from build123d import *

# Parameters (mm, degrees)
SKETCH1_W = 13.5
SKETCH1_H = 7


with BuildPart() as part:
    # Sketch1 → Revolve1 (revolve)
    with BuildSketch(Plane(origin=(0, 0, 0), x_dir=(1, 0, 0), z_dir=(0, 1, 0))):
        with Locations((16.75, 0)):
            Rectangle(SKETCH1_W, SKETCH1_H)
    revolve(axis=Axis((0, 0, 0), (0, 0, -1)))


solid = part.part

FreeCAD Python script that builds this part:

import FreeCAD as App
import Part
import Sketcher
from FreeCAD import Vector


def add_polygon(sketch, points):
    """Adds a closed chain of lines whose ends are joined by coincident constraints."""
    first, n = sketch.GeometryCount, len(points)
    for a, b in zip(points, points[1:] + points[:1]):
        sketch.addGeometry(Part.LineSegment(App.Vector(*a, 0), App.Vector(*b, 0)), False)
    for i in range(n):
        sketch.addConstraint(Sketcher.Constraint("Coincident", first + i, 2, first + (i + 1) % n, 1))

doc = App.newDocument("Part")
params = doc.addObject("Spreadsheet::Sheet", "Params")
for row, (alias, value) in enumerate([
    ("sketch1_height", "7 mm"),
    ("sketch1_width", "13.5 mm"),
    ("revolution_angle", "360 deg"),
], start=1):
    params.set(f"A{row}", alias)
    params.set(f"B{row}", "=" + value)
    params.setAlias(f"B{row}", alias)

body = doc.addObject("PartDesign::Body", "Body")

sketch1 = body.newObject("Sketcher::SketchObject", "Sketch")
sketch1.AttachmentSupport = (doc.getObject("XZ_Plane"), [""])
sketch1.MapMode = "FlatFace"
add_polygon(sketch1, [(10, -4), (10, 4), (24, 4), (24, -4)])
sketch1.addConstraint(Sketcher.Constraint("Vertical", 0))
sketch1.addConstraint(Sketcher.Constraint("Horizontal", 1))
sketch1.addConstraint(Sketcher.Constraint("Vertical", 2))
sketch1.addConstraint(Sketcher.Constraint("Horizontal", 3))
sketch1.addConstraint(Sketcher.Constraint("DistanceY", 0, 1, 0, 2, 7.0))
sketch1.addConstraint(Sketcher.Constraint("DistanceX", 1, 1, 1, 2, 13.5))
sketch1.addConstraint(Sketcher.Constraint("DistanceX", -1, 1, 0, 2, 10.0))
sketch1.addConstraint(Sketcher.Constraint("DistanceY", -1, 1, 0, 2, 3.5))
sketch1.setExpression("Constraints[8]", "Params.sketch1_height")
sketch1.setExpression("Constraints[9]", "Params.sketch1_width")
revolution = body.newObject("PartDesign::Revolution", "Revolution")
revolution.Profile = sketch1
revolution.ReferenceAxis = (sketch1, ["V_Axis"])
revolution.setExpression("Angle", "Params.revolution_angle")

doc.recompute()
